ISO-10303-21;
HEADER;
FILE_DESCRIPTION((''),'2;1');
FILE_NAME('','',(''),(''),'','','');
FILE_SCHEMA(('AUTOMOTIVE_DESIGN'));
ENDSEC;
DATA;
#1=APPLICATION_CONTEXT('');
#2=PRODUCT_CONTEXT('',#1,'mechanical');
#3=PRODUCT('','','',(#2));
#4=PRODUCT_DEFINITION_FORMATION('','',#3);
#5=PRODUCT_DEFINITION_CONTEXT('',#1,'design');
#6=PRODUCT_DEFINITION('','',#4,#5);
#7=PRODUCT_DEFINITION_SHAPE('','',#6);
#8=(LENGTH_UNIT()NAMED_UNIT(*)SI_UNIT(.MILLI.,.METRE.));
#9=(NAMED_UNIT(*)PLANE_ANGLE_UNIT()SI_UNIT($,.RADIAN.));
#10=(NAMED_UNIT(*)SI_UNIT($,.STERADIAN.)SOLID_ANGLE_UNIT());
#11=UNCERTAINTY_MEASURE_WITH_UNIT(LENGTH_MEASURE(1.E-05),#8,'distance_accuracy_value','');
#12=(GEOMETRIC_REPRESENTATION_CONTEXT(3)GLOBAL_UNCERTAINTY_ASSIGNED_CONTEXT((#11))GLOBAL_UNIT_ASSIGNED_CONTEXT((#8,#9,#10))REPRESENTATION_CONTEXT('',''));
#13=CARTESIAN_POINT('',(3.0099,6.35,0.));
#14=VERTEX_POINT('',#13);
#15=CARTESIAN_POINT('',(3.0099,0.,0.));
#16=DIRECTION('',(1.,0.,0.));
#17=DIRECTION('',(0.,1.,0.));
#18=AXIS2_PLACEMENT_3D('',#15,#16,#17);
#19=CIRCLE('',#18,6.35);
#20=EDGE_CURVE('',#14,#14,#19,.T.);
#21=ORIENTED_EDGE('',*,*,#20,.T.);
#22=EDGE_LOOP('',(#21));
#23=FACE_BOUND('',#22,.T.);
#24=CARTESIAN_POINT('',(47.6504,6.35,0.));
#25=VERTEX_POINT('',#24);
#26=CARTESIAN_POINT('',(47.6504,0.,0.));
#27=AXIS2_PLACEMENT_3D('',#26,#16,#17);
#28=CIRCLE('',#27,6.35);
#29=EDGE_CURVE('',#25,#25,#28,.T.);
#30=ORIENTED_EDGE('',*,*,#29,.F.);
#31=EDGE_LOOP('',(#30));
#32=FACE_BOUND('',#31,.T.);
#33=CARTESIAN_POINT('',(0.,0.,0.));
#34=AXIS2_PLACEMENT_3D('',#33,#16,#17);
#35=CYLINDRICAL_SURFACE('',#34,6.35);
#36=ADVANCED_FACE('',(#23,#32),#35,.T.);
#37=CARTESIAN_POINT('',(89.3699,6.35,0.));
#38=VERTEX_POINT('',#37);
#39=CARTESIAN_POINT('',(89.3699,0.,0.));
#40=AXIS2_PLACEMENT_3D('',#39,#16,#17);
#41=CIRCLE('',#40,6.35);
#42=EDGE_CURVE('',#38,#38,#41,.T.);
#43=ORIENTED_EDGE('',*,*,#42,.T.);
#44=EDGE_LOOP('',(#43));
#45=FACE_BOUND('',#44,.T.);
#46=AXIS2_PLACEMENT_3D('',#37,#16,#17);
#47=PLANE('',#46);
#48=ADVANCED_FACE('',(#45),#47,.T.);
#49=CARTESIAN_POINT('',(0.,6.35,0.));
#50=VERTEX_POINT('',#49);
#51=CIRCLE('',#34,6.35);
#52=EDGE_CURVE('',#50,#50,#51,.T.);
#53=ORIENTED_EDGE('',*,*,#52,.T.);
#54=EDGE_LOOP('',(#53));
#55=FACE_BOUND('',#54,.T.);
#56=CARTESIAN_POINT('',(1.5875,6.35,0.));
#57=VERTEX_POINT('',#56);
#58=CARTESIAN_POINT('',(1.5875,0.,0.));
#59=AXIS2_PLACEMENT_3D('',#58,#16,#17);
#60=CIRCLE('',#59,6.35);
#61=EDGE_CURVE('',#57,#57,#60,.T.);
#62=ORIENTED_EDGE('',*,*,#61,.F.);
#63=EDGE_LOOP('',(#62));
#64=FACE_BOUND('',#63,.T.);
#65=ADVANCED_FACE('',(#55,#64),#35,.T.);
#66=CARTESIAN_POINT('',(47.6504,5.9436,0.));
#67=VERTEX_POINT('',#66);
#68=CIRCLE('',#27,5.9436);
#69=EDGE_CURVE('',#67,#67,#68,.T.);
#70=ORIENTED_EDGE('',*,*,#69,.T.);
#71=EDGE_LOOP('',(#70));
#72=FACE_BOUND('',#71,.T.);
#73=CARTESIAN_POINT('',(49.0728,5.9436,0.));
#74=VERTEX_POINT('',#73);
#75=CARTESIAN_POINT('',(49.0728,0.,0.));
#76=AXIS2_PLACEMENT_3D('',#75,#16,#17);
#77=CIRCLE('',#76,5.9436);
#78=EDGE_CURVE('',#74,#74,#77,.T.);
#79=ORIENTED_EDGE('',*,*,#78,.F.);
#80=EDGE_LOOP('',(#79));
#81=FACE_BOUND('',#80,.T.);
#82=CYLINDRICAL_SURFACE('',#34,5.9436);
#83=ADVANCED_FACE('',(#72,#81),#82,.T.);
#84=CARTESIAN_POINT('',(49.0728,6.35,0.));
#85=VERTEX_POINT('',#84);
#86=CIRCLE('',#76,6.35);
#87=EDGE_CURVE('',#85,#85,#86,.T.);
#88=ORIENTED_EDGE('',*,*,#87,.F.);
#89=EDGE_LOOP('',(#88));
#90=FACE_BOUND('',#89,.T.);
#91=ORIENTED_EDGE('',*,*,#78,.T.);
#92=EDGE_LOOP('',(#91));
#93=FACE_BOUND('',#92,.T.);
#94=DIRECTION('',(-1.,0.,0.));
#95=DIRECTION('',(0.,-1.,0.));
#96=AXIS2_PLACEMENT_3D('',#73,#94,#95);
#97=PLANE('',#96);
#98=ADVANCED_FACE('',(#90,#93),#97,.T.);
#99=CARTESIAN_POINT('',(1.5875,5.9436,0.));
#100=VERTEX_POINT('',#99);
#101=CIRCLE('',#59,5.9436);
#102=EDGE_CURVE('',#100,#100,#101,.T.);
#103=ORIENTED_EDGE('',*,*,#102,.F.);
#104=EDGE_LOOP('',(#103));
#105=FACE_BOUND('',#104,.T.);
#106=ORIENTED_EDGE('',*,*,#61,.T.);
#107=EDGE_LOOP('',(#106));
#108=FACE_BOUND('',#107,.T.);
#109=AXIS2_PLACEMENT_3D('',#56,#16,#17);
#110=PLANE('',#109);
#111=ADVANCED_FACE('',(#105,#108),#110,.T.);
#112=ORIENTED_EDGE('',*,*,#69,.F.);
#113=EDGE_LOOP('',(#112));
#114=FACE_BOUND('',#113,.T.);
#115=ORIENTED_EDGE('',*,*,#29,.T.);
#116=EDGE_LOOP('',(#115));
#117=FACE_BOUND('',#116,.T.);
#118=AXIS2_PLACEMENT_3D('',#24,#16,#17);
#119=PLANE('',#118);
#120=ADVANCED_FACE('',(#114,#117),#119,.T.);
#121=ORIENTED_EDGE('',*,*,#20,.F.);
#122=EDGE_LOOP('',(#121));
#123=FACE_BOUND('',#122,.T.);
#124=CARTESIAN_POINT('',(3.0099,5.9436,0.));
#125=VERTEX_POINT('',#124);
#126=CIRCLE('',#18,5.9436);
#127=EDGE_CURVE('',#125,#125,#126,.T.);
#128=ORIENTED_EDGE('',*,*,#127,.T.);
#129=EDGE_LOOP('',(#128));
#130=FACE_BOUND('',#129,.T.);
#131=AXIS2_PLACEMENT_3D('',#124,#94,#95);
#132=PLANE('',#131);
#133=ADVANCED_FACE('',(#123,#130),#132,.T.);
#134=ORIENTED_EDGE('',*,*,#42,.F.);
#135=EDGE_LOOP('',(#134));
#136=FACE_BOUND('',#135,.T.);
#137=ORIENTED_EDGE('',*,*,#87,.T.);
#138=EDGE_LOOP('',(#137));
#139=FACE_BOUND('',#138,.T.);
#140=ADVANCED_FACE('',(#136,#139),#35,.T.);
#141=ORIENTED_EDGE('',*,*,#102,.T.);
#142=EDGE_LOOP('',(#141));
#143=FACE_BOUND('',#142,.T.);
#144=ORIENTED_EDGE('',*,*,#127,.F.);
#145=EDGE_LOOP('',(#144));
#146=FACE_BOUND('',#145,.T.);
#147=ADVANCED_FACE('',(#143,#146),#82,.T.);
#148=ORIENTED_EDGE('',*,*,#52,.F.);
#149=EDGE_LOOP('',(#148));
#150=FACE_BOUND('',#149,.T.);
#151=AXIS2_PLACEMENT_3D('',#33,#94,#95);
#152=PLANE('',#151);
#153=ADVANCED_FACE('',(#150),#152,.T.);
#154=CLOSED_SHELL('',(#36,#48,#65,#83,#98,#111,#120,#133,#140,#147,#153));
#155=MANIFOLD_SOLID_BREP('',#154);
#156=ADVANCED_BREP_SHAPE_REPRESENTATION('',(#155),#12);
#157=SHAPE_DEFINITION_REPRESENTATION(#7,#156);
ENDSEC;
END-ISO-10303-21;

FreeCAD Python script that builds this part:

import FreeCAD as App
import Part
import Sketcher
from FreeCAD import Vector
Q = App.Units.Quantity

doc = App.newDocument("Part")
body = doc.addObject("PartDesign::Body", "Body")

# Sketch on XY plane
sketch1 = body.newObject("Sketcher::SketchObject", "Sketch")
sketch1.AttachmentSupport = (doc.getObject("XY_Plane"), [""])
sketch1.MapMode = "FlatFace"
sketch1.addGeometry([
    Part.LineSegment(Vector(0, 6.35, 0), Vector(0, 0, 0)),  # 0
    Part.LineSegment(Vector(0, 0, 0), Vector(89.3699, 0, 0)),  # 1
    Part.LineSegment(Vector(89.3699, 0, 0), Vector(89.3699, 6.35, 0)),  # 2
    Part.LineSegment(Vector(89.3699, 6.35, 0), Vector(49.0728, 6.35, 0)),  # 3
    Part.LineSegment(Vector(49.0728, 6.35, 0), Vector(49.0728, 5.9436, 0)),  # 4
    Part.LineSegment(Vector(49.0728, 5.9436, 0), Vector(47.6504, 5.9436, 0)),  # 5
    Part.LineSegment(Vector(47.6504, 5.9436, 0), Vector(47.6504, 6.35, 0)),  # 6
    Part.LineSegment(Vector(47.6504, 6.35, 0), Vector(3.0099, 6.35, 0)),  # 7
    Part.LineSegment(Vector(3.0099, 6.35, 0), Vector(3.0099, 5.9436, 0)),  # 8
    Part.LineSegment(Vector(3.0099, 5.9436, 0), Vector(1.5875, 5.9436, 0)),  # 9
    Part.LineSegment(Vector(1.5875, 5.9436, 0), Vector(1.5875, 6.35, 0)),  # 10
    Part.LineSegment(Vector(1.5875, 6.35, 0), Vector(0, 6.35, 0)),  # 11
], False)
sketch1.addConstraint([
    Sketcher.Constraint("Coincident", 0, 2, 1, 1),
    Sketcher.Constraint("Coincident", 1, 2, 2, 1),
    Sketcher.Constraint("Coincident", 2, 2, 3, 1),
    Sketcher.Constraint("Coincident", 3, 2, 4, 1),
    Sketcher.Constraint("Coincident", 4, 2, 5, 1),
    Sketcher.Constraint("Coincident", 5, 2, 6, 1),
    Sketcher.Constraint("Coincident", 6, 2, 7, 1),
    Sketcher.Constraint("Coincident", 7, 2, 8, 1),
    Sketcher.Constraint("Coincident", 8, 2, 9, 1),
    Sketcher.Constraint("Coincident", 9, 2, 10, 1),
    Sketcher.Constraint("Coincident", 10, 2, 11, 1),
    Sketcher.Constraint("Coincident", 11, 2, 0, 1),
    Sketcher.Constraint("Vertical", 0),
    Sketcher.Constraint("Horizontal", 1),
    Sketcher.Constraint("Vertical", 2),
    Sketcher.Constraint("Horizontal", 3),
    Sketcher.Constraint("Vertical", 4),
    Sketcher.Constraint("Horizontal", 5),
    Sketcher.Constraint("Vertical", 6),
    Sketcher.Constraint("Horizontal", 7),
    Sketcher.Constraint("Vertical", 8),
    Sketcher.Constraint("Horizontal", 9),
    Sketcher.Constraint("Vertical", 10),
    Sketcher.Constraint("Horizontal", 11),
    Sketcher.Constraint("Coincident", 0, 2, -1, 1),
    Sketcher.Constraint("Horizontal", 3, 2, 6, 2),
    Sketcher.Constraint("Horizontal", 5, 2, 8, 2),
    Sketcher.Constraint("Horizontal", 7, 2, 10, 2),
    Sketcher.Constraint("Equal", 5, 9),
    Sketcher.Constraint("DistanceY", 0, 2, 0, 1, Q("0.25 in")),
    Sketcher.Constraint("DistanceX", 5, 2, 5, 1, Q("0.056 in")),
    Sketcher.Constraint("DistanceX", 11, 2, 11, 1, Q("0.0625 in")),
    Sketcher.Constraint("DistanceY", 4, 2, 4, 1, Q("0.016 in")),
    Sketcher.Constraint("DistanceX", 1, 1, 1, 2, Q("3.5185 in")),
    Sketcher.Constraint("DistanceX", 3, 2, 3, 1, Q("1.5865 in")),
])
revolution = body.newObject("PartDesign::Revolution", "Revolution")
revolution.Profile = sketch1
revolution.ReferenceAxis = (sketch1, ["H_Axis"])
revolution.Angle = 360

doc.recompute()
